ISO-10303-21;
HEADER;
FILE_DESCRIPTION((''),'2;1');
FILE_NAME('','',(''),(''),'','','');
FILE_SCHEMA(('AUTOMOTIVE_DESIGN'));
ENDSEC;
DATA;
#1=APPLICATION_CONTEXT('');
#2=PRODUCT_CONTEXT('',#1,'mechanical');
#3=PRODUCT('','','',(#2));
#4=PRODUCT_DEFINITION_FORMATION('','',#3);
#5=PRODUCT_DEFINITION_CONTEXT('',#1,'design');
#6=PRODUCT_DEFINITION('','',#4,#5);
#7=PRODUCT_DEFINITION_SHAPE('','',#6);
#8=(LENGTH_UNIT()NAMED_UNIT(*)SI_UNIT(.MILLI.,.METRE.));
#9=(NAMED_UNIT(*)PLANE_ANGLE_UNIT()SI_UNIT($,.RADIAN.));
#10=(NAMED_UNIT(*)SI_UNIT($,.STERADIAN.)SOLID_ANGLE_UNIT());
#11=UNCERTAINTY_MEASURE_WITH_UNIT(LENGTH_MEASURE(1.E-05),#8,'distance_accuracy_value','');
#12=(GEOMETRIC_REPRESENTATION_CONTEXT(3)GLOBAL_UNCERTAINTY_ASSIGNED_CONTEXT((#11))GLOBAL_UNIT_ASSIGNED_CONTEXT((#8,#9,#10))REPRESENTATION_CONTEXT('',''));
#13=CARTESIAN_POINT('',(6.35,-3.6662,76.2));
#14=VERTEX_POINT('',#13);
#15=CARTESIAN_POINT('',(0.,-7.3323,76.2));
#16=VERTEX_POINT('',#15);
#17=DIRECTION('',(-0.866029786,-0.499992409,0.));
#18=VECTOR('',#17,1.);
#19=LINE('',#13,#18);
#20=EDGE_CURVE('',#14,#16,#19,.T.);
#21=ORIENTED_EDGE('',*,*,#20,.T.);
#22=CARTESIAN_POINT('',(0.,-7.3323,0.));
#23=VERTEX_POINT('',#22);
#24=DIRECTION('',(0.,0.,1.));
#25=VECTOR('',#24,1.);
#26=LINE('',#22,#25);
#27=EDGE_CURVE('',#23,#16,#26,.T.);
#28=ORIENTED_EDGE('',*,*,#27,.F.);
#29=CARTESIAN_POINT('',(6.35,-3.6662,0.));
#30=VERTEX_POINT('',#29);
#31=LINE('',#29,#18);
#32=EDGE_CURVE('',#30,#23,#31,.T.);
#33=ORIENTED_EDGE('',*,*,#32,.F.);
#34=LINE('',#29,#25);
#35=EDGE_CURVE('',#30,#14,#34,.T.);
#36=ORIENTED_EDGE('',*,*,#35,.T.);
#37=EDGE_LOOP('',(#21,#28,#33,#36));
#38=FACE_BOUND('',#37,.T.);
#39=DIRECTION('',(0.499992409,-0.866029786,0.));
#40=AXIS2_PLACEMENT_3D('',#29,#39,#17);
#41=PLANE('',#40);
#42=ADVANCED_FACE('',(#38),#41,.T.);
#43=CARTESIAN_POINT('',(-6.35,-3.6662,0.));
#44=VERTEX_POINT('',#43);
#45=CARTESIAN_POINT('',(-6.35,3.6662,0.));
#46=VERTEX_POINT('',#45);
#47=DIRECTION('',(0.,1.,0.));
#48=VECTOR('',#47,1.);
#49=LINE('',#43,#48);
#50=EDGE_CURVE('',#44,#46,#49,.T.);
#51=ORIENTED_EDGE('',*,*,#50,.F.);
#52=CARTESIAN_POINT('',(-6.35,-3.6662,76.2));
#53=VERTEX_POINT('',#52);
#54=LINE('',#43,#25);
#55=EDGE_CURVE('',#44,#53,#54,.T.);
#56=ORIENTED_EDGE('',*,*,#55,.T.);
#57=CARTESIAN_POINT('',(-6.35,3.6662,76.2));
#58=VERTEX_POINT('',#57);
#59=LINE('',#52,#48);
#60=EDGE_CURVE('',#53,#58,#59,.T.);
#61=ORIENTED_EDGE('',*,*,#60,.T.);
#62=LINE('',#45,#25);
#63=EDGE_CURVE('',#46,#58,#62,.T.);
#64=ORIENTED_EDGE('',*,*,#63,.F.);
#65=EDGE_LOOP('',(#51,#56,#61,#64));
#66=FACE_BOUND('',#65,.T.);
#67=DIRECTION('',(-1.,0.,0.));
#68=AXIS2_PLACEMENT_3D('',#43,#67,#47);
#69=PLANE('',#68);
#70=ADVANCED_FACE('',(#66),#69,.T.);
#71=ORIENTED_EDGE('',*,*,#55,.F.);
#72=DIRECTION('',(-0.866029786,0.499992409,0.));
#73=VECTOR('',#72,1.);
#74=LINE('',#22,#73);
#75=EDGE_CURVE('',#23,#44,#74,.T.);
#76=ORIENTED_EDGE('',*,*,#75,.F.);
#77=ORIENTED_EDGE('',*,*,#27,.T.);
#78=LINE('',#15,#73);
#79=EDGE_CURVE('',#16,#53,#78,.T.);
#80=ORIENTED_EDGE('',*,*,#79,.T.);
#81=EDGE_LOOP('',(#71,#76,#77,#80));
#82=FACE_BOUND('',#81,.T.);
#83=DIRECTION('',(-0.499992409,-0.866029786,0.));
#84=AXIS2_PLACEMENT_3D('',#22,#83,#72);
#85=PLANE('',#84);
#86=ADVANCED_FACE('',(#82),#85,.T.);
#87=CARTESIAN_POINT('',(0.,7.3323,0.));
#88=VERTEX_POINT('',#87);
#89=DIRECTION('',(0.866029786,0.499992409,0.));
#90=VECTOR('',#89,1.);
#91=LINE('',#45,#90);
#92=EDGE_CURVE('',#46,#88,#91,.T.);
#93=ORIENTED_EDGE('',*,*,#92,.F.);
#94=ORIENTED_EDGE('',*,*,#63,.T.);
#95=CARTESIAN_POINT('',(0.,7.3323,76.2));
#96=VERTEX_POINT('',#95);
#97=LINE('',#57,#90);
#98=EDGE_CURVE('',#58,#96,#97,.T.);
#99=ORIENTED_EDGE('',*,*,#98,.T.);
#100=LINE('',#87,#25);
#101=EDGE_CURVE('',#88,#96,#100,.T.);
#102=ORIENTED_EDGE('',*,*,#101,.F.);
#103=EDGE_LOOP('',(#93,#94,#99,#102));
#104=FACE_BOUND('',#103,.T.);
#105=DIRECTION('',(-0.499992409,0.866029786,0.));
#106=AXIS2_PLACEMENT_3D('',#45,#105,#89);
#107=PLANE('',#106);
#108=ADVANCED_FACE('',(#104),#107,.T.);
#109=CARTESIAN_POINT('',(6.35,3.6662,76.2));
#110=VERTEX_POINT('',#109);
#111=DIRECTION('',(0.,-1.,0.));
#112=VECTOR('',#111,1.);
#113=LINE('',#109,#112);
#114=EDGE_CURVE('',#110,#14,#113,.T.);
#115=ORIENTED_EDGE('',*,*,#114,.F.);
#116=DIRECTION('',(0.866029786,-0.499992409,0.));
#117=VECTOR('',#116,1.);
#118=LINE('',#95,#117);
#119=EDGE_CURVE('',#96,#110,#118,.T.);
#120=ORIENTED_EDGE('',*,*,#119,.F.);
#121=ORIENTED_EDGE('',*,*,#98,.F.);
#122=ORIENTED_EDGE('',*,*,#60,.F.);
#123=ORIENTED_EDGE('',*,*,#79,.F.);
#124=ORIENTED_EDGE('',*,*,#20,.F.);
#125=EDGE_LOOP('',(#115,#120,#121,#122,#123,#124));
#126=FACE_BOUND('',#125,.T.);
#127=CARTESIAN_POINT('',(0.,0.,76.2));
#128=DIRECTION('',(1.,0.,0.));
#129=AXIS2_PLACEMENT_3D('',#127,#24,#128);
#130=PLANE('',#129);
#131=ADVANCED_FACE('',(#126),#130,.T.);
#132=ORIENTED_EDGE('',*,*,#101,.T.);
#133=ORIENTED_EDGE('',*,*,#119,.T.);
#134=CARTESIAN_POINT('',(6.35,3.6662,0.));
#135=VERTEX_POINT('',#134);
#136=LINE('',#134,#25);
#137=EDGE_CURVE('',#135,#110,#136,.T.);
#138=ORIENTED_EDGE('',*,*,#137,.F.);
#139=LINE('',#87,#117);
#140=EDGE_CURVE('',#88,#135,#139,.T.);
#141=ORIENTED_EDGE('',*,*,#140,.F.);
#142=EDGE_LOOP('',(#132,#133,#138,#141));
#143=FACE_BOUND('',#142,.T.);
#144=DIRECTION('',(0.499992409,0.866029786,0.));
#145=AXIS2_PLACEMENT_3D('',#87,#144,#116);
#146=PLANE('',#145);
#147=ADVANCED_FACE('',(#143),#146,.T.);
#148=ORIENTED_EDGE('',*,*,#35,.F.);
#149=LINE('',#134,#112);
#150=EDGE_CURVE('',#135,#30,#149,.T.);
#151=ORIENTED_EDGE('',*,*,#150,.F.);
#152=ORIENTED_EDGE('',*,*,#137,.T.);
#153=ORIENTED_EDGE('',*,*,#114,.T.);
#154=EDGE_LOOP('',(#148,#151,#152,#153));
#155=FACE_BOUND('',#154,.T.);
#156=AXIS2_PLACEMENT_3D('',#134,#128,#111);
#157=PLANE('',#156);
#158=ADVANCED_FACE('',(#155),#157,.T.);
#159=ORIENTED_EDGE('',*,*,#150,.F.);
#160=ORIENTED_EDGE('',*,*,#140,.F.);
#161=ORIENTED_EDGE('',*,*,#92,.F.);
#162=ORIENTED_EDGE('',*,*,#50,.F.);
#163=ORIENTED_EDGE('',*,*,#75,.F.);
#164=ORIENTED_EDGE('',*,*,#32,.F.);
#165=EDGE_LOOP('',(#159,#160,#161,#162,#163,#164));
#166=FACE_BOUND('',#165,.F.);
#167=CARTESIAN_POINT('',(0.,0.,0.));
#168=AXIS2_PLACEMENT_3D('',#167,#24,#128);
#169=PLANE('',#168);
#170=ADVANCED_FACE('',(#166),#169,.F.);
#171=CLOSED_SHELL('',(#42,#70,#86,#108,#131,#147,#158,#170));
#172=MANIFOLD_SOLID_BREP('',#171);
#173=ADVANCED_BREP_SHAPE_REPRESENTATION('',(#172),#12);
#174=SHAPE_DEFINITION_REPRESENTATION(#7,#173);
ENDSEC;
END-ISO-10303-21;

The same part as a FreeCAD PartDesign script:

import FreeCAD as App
import Part
import Sketcher

V = App.Vector
Q = App.Units.Quantity


def add_polygon(sketch, points):
    """Adds a closed chain of lines whose ends are joined by coincident constraints."""
    first, n = sketch.GeometryCount, len(points)
    for a, b in zip(points, points[1:] + points[:1]):
        sketch.addGeometry(Part.LineSegment(App.Vector(*a, 0), App.Vector(*b, 0)), False)
    for i in range(n):
        sketch.addConstraint(Sketcher.Constraint("Coincident", first + i, 2, first + (i + 1) % n, 1))

doc = App.newDocument("Part")
params = doc.addObject("Spreadsheet::Sheet", "Params")
for row, (alias, value) in enumerate([
    ("pad1_length", "3 in"),
], start=1):
    params.set(f"A{row}", alias)
    params.set(f"B{row}", "=" + value)
    params.setAlias(f"B{row}", alias)

body = doc.addObject("PartDesign::Body", "Body")

# Sketch on XY plane
sketch1 = doc.addObject("Sketcher::SketchObject", "Sketch")
body.addObject(sketch1)
sketch1.AttachmentSupport = (doc.XY_Plane, [""])
sketch1.MapMode = "FlatFace"
add_polygon(sketch1, [(6.35, 3.6662), (0, 7.3323), (-6.35, 3.6662), (-6.35, -3.6662), (0, -7.3323), (6.35, -3.6662)])  # lines 0-5
sketch1.addConstraint([
    Sketcher.Constraint("Vertical", 2),
    Sketcher.Constraint("Vertical", 5),
    Sketcher.Constraint("Symmetric", 0, 2, 3, 2, -1, 1),
    Sketcher.Constraint("Symmetric", 1, 2, 4, 2, -1, 1),
    Sketcher.Constraint("PointOnObject", 0, 2, -2),
    Sketcher.Constraint("Parallel", 0, 3),
    Sketcher.Constraint("Horizontal", 2, 2, 4, 2),
    Sketcher.Constraint("DistanceX", 2, 2, 4, 2, Q("0.5 in")),
    Sketcher.Constraint("Angle", 0, Q("150.0005 deg")),
    Sketcher.Constraint("DistanceY", 2, 2, 0, 2, Q("0.433 in")),
])
pad1 = doc.addObject("PartDesign::Pad", "Pad")
body.addObject(pad1)
pad1.Profile = sketch1
pad1.setExpression("Length", "Params.pad1_length")

doc.recompute()
